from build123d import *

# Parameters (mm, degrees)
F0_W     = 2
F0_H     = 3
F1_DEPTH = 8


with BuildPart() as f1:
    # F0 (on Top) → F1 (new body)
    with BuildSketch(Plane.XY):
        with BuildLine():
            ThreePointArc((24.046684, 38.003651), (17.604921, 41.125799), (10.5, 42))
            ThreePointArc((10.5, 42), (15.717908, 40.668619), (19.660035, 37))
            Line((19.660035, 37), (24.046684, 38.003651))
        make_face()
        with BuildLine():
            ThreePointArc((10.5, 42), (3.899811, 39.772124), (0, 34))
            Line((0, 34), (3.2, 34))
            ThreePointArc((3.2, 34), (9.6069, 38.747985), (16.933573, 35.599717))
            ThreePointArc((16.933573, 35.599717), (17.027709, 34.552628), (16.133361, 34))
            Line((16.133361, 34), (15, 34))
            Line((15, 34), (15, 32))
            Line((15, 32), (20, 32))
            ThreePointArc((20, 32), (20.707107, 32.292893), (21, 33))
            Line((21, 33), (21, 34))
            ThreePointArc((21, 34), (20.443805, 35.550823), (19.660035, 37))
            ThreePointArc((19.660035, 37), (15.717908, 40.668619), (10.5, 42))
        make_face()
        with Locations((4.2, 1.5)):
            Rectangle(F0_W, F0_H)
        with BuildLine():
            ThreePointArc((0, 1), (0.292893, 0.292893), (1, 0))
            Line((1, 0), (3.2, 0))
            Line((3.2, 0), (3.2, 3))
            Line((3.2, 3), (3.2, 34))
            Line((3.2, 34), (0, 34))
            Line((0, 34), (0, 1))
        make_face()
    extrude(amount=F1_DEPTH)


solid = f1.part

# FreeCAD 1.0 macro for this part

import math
import FreeCAD as App
import Part
import Sketcher
Q = App.Units.Quantity

doc = App.newDocument("Part")
params = doc.addObject("Spreadsheet::Sheet", "Params")
for row, (alias, value) in enumerate([
    ("sketch1_radius", "0.999999 mm"),
    ("sketch1_width", "2 mm"),
    ("sketch1_width2", "5 mm"),
    ("sketch1_height", "33 mm"),
    ("sketch1_height2", "3 mm"),
    ("pad1_length", "8 mm"),
], start=1):
    params.set(f"A{row}", alias)
    params.set(f"B{row}", "=" + value)
    params.setAlias(f"B{row}", alias)

body = doc.addObject("PartDesign::Body", "Body")

# Sketch on XY plane
sketch1 = doc.addObject("Sketcher::SketchObject", "Sketch")
body.addObject(sketch1)
sketch1.AttachmentSupport = (doc.XY_Plane, [""])
sketch1.MapMode = "FlatFace"
sketch1.addGeometry([
    Part.LineSegment(App.Vector(19.7, 37, 0), App.Vector(24, 38, 0)),  # 0
    Part.ArcOfCircle(Part.Circle(App.Vector(11.4, 20.2, 0), App.Vector(0, 0, 1), 21.9), math.radians(55), math.radians(92)),  # 1
    Part.ArcOfCircle(Part.Circle(App.Vector(10.5, 31.1, 0), App.Vector(0, 0, 1), 10.9), math.radians(90), math.radians(165)),  # 2
    Part.LineSegment(App.Vector(0, 34, 0), App.Vector(0, 1, 0)),  # 3
    Part.ArcOfCircle(Part.Circle(App.Vector(1, 1, 0), App.Vector(0, 0, 1), 1), math.radians(180), math.radians(270)),  # 4
    Part.LineSegment(App.Vector(1, 0, 0), App.Vector(5.2, 0, 0)),  # 5
    Part.LineSegment(App.Vector(5.2, 0, 0), App.Vector(5.2, 3, 0)),  # 6
    Part.LineSegment(App.Vector(5.2, 3, 0), App.Vector(3.2, 3, 0)),  # 7
    Part.LineSegment(App.Vector(3.2, 3, 0), App.Vector(3.2, 34, 0)),  # 8
    Part.ArcOfCircle(Part.Circle(App.Vector(10.5, 30.8, 0), App.Vector(0, 0, 1), 8), math.radians(37), math.radians(156)),  # 9
    Part.ArcOfCircle(Part.Circle(App.Vector(16.1, 35, 0), App.Vector(0, 0, 1), 1), math.radians(-90), math.radians(37)),  # 10
    Part.LineSegment(App.Vector(16.1, 34, 0), App.Vector(15, 34, 0)),  # 11
    Part.LineSegment(App.Vector(15, 34, 0), App.Vector(15, 32, 0)),  # 12
    Part.LineSegment(App.Vector(15, 32, 0), App.Vector(20, 32, 0)),  # 13
    Part.ArcOfCircle(Part.Circle(App.Vector(20, 33, 0), App.Vector(0, 0, 1), 1), math.radians(-90), math.radians(0)),  # 14
    Part.LineSegment(App.Vector(21, 33, 0), App.Vector(21, 34, 0)),  # 15
    Part.ArcOfCircle(Part.Circle(App.Vector(10.5, 31.1, 0), App.Vector(0, 0, 1), 10.9), math.radians(15.39), math.radians(32.74)),  # 16
], False)
sketch1.addConstraint([
    Sketcher.Constraint("Coincident", 0, 2, 1, 1),
    Sketcher.Constraint("Coincident", 1, 2, 2, 1),
    Sketcher.Constraint("Coincident", 2, 2, 3, 1),
    Sketcher.Constraint("Tangent", 3, 2, 4, 1),
    Sketcher.Constraint("Tangent", 4, 2, 5, 1),
    Sketcher.Constraint("Coincident", 5, 2, 6, 1),
    Sketcher.Constraint("Coincident", 6, 2, 7, 1),
    Sketcher.Constraint("Coincident", 7, 2, 8, 1),
    Sketcher.Constraint("Coincident", 8, 2, 9, 2),
    Sketcher.Constraint("Tangent", 9, 1, 10, 2),
    Sketcher.Constraint("Tangent", 10, 1, 11, 1),
    Sketcher.Constraint("Coincident", 11, 2, 12, 1),
    Sketcher.Constraint("Coincident", 12, 2, 13, 1),
    Sketcher.Constraint("Tangent", 13, 2, 14, 1),
    Sketcher.Constraint("Tangent", 14, 2, 15, 1),
    Sketcher.Constraint("Coincident", 15, 2, 16, 1),
    Sketcher.Constraint("Coincident", 16, 2, 0, 1),
    Sketcher.Constraint("Vertical", 3),
    Sketcher.Constraint("Horizontal", 5),
    Sketcher.Constraint("Vertical", 6),
    Sketcher.Constraint("Horizontal", 7),
    Sketcher.Constraint("Vertical", 8),
    Sketcher.Constraint("Horizontal", 11),
    Sketcher.Constraint("Vertical", 12),
    Sketcher.Constraint("Horizontal", 13),
    Sketcher.Constraint("Vertical", 15),
    Sketcher.Constraint("Equal", 4, 10),
    Sketcher.Constraint("Equal", 10, 14),
    Sketcher.Constraint("PointOnObject", 2, 2, -2),
    Sketcher.Constraint("PointOnObject", 4, 2, -1),
    Sketcher.Constraint("Horizontal", 2, 2, 8, 2),
    Sketcher.Constraint("Horizontal", 8, 2, 10, 1),
    Sketcher.Constraint("Horizontal", 11, 2, 15, 2),
    Sketcher.Constraint("Vertical", 2, 3, 1, 2),
    Sketcher.Constraint("Equal", 7, 12),
    Sketcher.Constraint("Radius", 4, Q("0.999999 mm")),
    Sketcher.Constraint("DistanceX", 7, 2, 7, 1, Q("2 mm")),
    Sketcher.Constraint("DistanceX", 13, 1, 13, 2, Q("5 mm")),
    Sketcher.Constraint("DistanceY", 3, 2, 3, 1, Q("33 mm")),
    Sketcher.Constraint("DistanceY", 6, 1, 6, 2, Q("3 mm")),
    Sketcher.Constraint("DistanceX", 5, 1, 5, 2, Q("4.2 mm")),
    Sketcher.Constraint("DistanceX", -1, 1, 14, 3, Q("20.000001 mm")),
    Sketcher.Constraint("DistanceY", -1, 1, 1, 2, Q("42 mm")),
    Sketcher.Constraint("DistanceY", -1, 1, 16, 2, Q("37 mm")),
    Sketcher.Constraint("Distance", 0, Q("4.500001 mm")),
    Sketcher.Constraint("DistanceX", -1, 1, 2, 3, Q("10.5 mm")),
    Sketcher.Constraint("Radius", 1, Q("21.864398 mm")),
    Sketcher.Constraint("Radius", 9, Q("7.999321 mm")),
    Sketcher.Constraint("Radius", 16, Q("10.890586 mm")),
    Sketcher.Constraint("DistanceX", 11, 2, 11, 1, Q("1.133361 mm")),
    Sketcher.Constraint("DistanceY", -1, 1, 1, 3, Q("20.154898 mm")),
    Sketcher.Constraint("DistanceY", -1, 1, 16, 3, Q("31.10939 mm")),
])
sketch1.setExpression("Constraints[35]", "Params.sketch1_radius")
sketch1.setExpression("Constraints[36]", "Params.sketch1_width")
sketch1.setExpression("Constraints[37]", "Params.sketch1_width2")
sketch1.setExpression("Constraints[38]", "Params.sketch1_height")
sketch1.setExpression("Constraints[39]", "Params.sketch1_height2")
pad1 = doc.addObject("PartDesign::Pad", "Pad")
body.addObject(pad1)
pad1.Profile = sketch1
pad1.setExpression("Length", "Params.pad1_length")

doc.recompute()
